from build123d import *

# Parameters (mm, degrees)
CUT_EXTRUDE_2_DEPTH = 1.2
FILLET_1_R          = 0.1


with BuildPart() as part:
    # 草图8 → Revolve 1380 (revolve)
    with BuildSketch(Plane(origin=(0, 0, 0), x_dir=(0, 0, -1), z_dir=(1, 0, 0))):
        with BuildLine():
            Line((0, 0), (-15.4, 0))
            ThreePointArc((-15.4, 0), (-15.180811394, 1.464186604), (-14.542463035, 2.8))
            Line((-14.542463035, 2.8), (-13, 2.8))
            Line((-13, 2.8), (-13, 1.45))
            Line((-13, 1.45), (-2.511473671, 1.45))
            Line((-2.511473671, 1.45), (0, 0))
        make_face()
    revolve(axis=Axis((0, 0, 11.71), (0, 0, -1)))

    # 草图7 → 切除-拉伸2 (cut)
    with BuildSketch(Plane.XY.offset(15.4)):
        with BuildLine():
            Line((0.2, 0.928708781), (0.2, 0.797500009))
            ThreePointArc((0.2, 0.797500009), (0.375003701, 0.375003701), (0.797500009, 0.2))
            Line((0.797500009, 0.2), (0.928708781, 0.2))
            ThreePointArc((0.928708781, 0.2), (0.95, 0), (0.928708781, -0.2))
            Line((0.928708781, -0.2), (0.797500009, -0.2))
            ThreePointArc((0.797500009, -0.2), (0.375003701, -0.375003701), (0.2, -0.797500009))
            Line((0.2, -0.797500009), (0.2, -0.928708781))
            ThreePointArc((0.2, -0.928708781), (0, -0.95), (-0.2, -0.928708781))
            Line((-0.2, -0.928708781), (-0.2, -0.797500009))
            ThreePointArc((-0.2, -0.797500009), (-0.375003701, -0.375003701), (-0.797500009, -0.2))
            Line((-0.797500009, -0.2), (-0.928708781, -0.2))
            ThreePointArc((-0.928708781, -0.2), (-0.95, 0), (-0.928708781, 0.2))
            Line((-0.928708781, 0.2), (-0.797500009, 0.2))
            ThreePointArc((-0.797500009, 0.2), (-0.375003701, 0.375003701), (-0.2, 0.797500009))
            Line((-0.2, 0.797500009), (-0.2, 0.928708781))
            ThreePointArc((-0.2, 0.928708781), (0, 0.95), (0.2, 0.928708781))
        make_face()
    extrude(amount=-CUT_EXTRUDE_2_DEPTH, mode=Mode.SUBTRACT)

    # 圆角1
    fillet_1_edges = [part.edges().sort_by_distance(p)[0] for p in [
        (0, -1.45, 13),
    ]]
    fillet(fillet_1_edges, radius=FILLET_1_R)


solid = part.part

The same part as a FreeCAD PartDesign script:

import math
import FreeCAD as App
import Part
import Sketcher
from FreeCAD import Vector
Q = App.Units.Quantity


def edges_at(feature, points):
    """Names of the edges that pass closest to the given points."""
    edges = feature.Shape.Edges
    near = lambda p: min(range(len(edges)), key=lambda i: edges[i].distToShape(Part.Vertex(*p))[0])
    return sorted({f"Edge{near(p) + 1}" for p in points})

doc = App.newDocument("Part")
body = doc.addObject("PartDesign::Body", "Body")

# Sketch on YZ plane
sketch1 = body.newObject("Sketcher::SketchObject", "Sketch")
sketch1.AttachmentSupport = (doc.getObject("YZ_Plane"), [""])
sketch1.MapMode = "FlatFace"
sketch1.addGeometry(Part.LineSegment(Vector(0, 15.4, 0), Vector(0, 0, 0)), False)
sketch1.addGeometry(Part.LineSegment(Vector(0, 0, 0), Vector(1.4, 2.5, 0)), False)
sketch1.addGeometry(Part.LineSegment(Vector(1.4, 2.5, 0), Vector(1.4, 13, 0)), False)
sketch1.addGeometry(Part.LineSegment(Vector(1.4, 13, 0), Vector(2.8, 13, 0)), False)
sketch1.addGeometry(Part.LineSegment(Vector(2.8, 13, 0), Vector(2.8, 14.5, 0)), False)
sketch1.addGeometry(Part.ArcOfCircle(Part.Circle(Vector(0, 10.4, 0), Vector(0, 0, 1), 5), math.radians(56), math.radians(90)), False)
sketch1.addConstraint(Sketcher.Constraint("Coincident", 0, 2, 1, 1))
sketch1.addConstraint(Sketcher.Constraint("Coincident", 1, 2, 2, 1))
sketch1.addConstraint(Sketcher.Constraint("Coincident", 2, 2, 3, 1))
sketch1.addConstraint(Sketcher.Constraint("Coincident", 3, 2, 4, 1))
sketch1.addConstraint(Sketcher.Constraint("Coincident", 4, 2, 5, 1))
sketch1.addConstraint(Sketcher.Constraint("Coincident", 5, 2, 0, 1))
sketch1.addConstraint(Sketcher.Constraint("Vertical", 0))
sketch1.addConstraint(Sketcher.Constraint("Vertical", 2))
sketch1.addConstraint(Sketcher.Constraint("Horizontal", 3))
sketch1.addConstraint(Sketcher.Constraint("Vertical", 4))
sketch1.addConstraint(Sketcher.Constraint("Coincident", 0, 2, -1, 1))
sketch1.addConstraint(Sketcher.Constraint("PointOnObject", 5, 3, -2))
sketch1.addConstraint(Sketcher.Constraint("Radius", 5, Q("5 mm")))
sketch1.addConstraint(Sketcher.Constraint("Angle", 1, Q("60 deg")))
sketch1.addConstraint(Sketcher.Constraint("DistanceY", 0, 2, 0, 1, Q("15.4 mm")))
sketch1.addConstraint(Sketcher.Constraint("DistanceY", -1, 1, 2, 2, Q("13 mm")))
sketch1.addConstraint(Sketcher.Constraint("Distance", 1, Q("2.9 mm")))
sketch1.addConstraint(Sketcher.Constraint("DistanceX", 3, 1, 3, 2, Q("1.35 mm")))
revolution = body.newObject("PartDesign::Revolution", "Revolution")
revolution.Profile = sketch1
revolution.ReferenceAxis = (sketch1, ["V_Axis"])
revolution.Angle = 360

# Sketch on XY plane
sketch2 = body.newObject("Sketcher::SketchObject", "Sketch001")
sketch2.AttachmentSupport = (doc.getObject("XY_Plane"), [""])
sketch2.MapMode = "FlatFace"
sketch2.AttachmentOffset = App.Placement(Vector(0, 0, 15.4), App.Rotation())
sketch2.addGeometry(Part.LineSegment(Vector(0.2, 0.8, 0), Vector(0.2, 0.93, 0)), False)
sketch2.addGeometry(Part.ArcOfCircle(Part.Circle(Vector(0, 0, 0), Vector(0, 0, 1), 0.95), math.radians(78), math.radians(102)), False)
sketch2.addGeometry(Part.LineSegment(Vector(-0.2, 0.93, 0), Vector(-0.2, 0.8, 0)), False)
sketch2.addGeometry(Part.ArcOfCircle(Part.Circle(Vector(-0.8, 0.8, 0), Vector(0, 0, 1), 0.6), math.radians(-90), math.radians(0)), False)
sketch2.addGeometry(Part.LineSegment(Vector(-0.8, 0.2, 0), Vector(-0.93, 0.2, 0)), False)
sketch2.addGeometry(Part.ArcOfCircle(Part.Circle(Vector(0, 0, 0), Vector(0, 0, 1), 0.95), math.radians(168), math.radians(192)), False)
sketch2.addGeometry(Part.LineSegment(Vector(-0.93, -0.2, 0), Vector(-0.8, -0.2, 0)), False)
sketch2.addGeometry(Part.ArcOfCircle(Part.Circle(Vector(-0.8, -0.8, 0), Vector(0, 0, 1), 0.6), math.radians(0), math.radians(90)), False)
sketch2.addGeometry(Part.LineSegment(Vector(-0.2, -0.8, 0), Vector(-0.2, -0.93, 0)), False)
sketch2.addGeometry(Part.ArcOfCircle(Part.Circle(Vector(0, 0, 0), Vector(0, 0, 1), 0.95), math.radians(-102), math.radians(-78)), False)
sketch2.addGeometry(Part.LineSegment(Vector(0.2, -0.93, 0), Vector(0.2, -0.8, 0)), False)
sketch2.addGeometry(Part.ArcOfCircle(Part.Circle(Vector(0.8, -0.8, 0), Vector(0, 0, 1), 0.6), math.radians(90), math.radians(180)), False)
sketch2.addGeometry(Part.LineSegment(Vector(0.8, -0.2, 0), Vector(0.93, -0.2, 0)), False)
sketch2.addGeometry(Part.ArcOfCircle(Part.Circle(Vector(0, 0, 0), Vector(0, 0, 1), 0.95), math.radians(-12), math.radians(12)), False)
sketch2.addGeometry(Part.LineSegment(Vector(0.93, 0.2, 0), Vector(0.8, 0.2, 0)), False)
sketch2.addGeometry(Part.ArcOfCircle(Part.Circle(Vector(0.8, 0.8, 0), Vector(0, 0, 1), 0.6), math.radians(180), math.radians(270)), False)
sketch2.addConstraint(Sketcher.Constraint("Coincident", 0, 2, 1, 1))
sketch2.addConstraint(Sketcher.Constraint("Coincident", 1, 2, 2, 1))
sketch2.addConstraint(Sketcher.Constraint("Tangent", 2, 2, 3, 2))
sketch2.addConstraint(Sketcher.Constraint("Tangent", 3, 1, 4, 1))
sketch2.addConstraint(Sketcher.Constraint("Coincident", 4, 2, 5, 1))
sketch2.addConstraint(Sketcher.Constraint("Coincident", 5, 2, 6, 1))
sketch2.addConstraint(Sketcher.Constraint("Tangent", 6, 2, 7, 2))
sketch2.addConstraint(Sketcher.Constraint("Tangent", 7, 1, 8, 1))
sketch2.addConstraint(Sketcher.Constraint("Coincident", 8, 2, 9, 1))
sketch2.addConstraint(Sketcher.Constraint("Coincident", 9, 2, 10, 1))
sketch2.addConstraint(Sketcher.Constraint("Tangent", 10, 2, 11, 2))
sketch2.addConstraint(Sketcher.Constraint("Tangent", 11, 1, 12, 1))
sketch2.addConstraint(Sketcher.Constraint("Coincident", 12, 2, 13, 1))
sketch2.addConstraint(Sketcher.Constraint("Coincident", 13, 2, 14, 1))
sketch2.addConstraint(Sketcher.Constraint("Tangent", 14, 2, 15, 2))
sketch2.addConstraint(Sketcher.Constraint("Tangent", 15, 1, 0, 1))
sketch2.addConstraint(Sketcher.Constraint("Vertical", 0))
sketch2.addConstraint(Sketcher.Constraint("Vertical", 2))
sketch2.addConstraint(Sketcher.Constraint("Horizontal", 4))
sketch2.addConstraint(Sketcher.Constraint("Horizontal", 6))
sketch2.addConstraint(Sketcher.Constraint("Vertical", 8))
sketch2.addConstraint(Sketcher.Constraint("Vertical", 10))
sketch2.addConstraint(Sketcher.Constraint("Horizontal", 12))
sketch2.addConstraint(Sketcher.Constraint("Horizontal", 14))
sketch2.addConstraint(Sketcher.Constraint("Coincident", 1, 3, -1, 1))
sketch2.addConstraint(Sketcher.Constraint("Coincident", 5, 3, -1, 1))
sketch2.addConstraint(Sketcher.Constraint("Coincident", 9, 3, -1, 1))
sketch2.addConstraint(Sketcher.Constraint("Coincident", 13, 3, -1, 1))
sketch2.addConstraint(Sketcher.Constraint("Equal", 1, 5))
sketch2.addConstraint(Sketcher.Constraint("Equal", 3, 7))
sketch2.addConstraint(Sketcher.Constraint("Equal", 5, 9))
sketch2.addConstraint(Sketcher.Constraint("Equal", 7, 11))
sketch2.addConstraint(Sketcher.Constraint("Equal", 9, 13))
sketch2.addConstraint(Sketcher.Constraint("Equal", 11, 15))
sketch2.addConstraint(Sketcher.Constraint("Symmetric", 3, 3, 11, 3, -1, 1))
sketch2.addConstraint(Sketcher.Constraint("Symmetric", 7, 3, 15, 3, -1, 1))
sketch2.addConstraint(Sketcher.Constraint("Symmetric", 7, 3, 11, 3, -2))
sketch2.addConstraint(Sketcher.Constraint("Equal", 14, 0))
sketch2.addConstraint(Sketcher.Constraint("Radius", 1, Q("0.95 mm")))
sketch2.addConstraint(Sketcher.Constraint("DistanceX", -1, 1, 0, 2, Q("0.2 mm")))
sketch2.addConstraint(Sketcher.Constraint("Radius", 3, Q("0.5975 mm")))
pocket1 = body.newObject("PartDesign::Pocket", "Pocket")
pocket1.Profile = sketch2
pocket1.Length = 1.2
doc.recompute()

fillet = body.newObject("PartDesign::Fillet", "Fillet")
fillet.Base = (pocket1, edges_at(pocket1, [(0, -1.45, 13)]))
fillet.Radius = 0.1

doc.recompute()
